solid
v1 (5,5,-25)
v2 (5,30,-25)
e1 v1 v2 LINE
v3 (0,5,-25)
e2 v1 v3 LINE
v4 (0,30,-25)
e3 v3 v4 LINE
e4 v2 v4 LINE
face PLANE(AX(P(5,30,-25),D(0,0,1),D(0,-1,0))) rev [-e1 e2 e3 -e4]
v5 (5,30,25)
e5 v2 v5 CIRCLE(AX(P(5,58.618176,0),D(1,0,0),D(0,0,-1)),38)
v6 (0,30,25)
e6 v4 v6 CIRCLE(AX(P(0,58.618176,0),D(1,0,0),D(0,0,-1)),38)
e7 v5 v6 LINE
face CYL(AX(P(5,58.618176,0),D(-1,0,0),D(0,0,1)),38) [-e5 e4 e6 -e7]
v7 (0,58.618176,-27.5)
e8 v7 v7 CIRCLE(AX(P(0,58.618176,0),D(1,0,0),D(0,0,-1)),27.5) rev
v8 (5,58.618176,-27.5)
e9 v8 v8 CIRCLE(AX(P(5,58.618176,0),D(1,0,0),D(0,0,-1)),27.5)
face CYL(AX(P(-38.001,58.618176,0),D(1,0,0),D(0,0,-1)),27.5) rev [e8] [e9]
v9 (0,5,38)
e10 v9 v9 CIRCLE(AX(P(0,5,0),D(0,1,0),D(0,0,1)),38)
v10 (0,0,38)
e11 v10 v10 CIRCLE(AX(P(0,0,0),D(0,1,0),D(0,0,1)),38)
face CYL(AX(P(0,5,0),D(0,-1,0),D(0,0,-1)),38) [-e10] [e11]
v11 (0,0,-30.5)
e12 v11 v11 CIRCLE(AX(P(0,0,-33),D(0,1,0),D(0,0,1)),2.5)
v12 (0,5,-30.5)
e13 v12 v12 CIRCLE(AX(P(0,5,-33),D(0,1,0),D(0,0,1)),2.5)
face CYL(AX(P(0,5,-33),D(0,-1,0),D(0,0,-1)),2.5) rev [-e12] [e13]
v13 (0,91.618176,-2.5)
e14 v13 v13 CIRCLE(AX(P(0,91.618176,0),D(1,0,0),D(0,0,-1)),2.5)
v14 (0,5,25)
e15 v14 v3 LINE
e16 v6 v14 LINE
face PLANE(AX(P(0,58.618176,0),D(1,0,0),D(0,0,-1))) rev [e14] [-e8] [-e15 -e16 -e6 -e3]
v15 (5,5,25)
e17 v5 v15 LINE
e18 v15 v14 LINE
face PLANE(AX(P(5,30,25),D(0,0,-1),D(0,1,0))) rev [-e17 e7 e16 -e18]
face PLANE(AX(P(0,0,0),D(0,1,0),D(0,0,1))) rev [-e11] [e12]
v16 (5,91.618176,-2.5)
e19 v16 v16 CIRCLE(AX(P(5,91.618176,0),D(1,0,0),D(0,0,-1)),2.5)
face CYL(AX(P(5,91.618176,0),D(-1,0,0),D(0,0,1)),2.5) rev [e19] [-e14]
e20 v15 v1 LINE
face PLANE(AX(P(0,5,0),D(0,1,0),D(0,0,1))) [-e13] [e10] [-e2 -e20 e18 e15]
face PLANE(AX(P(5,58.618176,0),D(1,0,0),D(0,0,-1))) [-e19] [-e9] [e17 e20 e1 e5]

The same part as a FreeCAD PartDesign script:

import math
import FreeCAD as App
import Part
import Sketcher

V = App.Vector
Q = App.Units.Quantity

doc = App.newDocument("Part")
params = doc.addObject("Spreadsheet::Sheet", "Params")
for row, (alias, value) in enumerate([
    ("sketch1_diameter", "76 mm"),
    ("sketch1_diameter2", "5 mm"),
    ("pad1_length", "5 mm"),
    ("sketch2_diameter", "5 mm"),
    ("sketch2_radius", "38 mm"),
    ("sketch2_width", "25 mm"),
    ("sketch2_height", "50 mm"),
    ("pad2_length", "5 mm"),
    ("sketch3_diameter", "55 mm"),
], start=1):
    params.set(f"A{row}", alias)
    params.set(f"B{row}", "=" + value)
    params.setAlias(f"B{row}", alias)

body = doc.addObject("PartDesign::Body", "Body")

# Sketch on XZ plane
sketch1 = body.newObject("Sketcher::SketchObject", "Sketch")
sketch1.AttachmentSupport = (doc.getObject("XZ_Plane"), [""])
sketch1.MapMode = "FlatFace"
sketch1.addGeometry([
    Part.Circle(V(0, 0, 0), V(0, 0, 1), 38),
    Part.Circle(V(0, -33, 0), V(0, 0, 1), 2.5),
], False)
sketch1.addConstraint([
    Sketcher.Constraint("Coincident", 0, 3, -1, 1),
    Sketcher.Constraint("PointOnObject", 1, 3, -2),
    Sketcher.Constraint("Diameter", 0, Q("76 mm")),
    Sketcher.Constraint("Diameter", 1, Q("5 mm")),
    Sketcher.Constraint("DistanceY", 1, 3, -1, 1, Q("33 mm")),
])
sketch1.setExpression("Constraints[2]", "Params.sketch1_diameter")
sketch1.setExpression("Constraints[3]", "Params.sketch1_diameter2")
pad1 = body.newObject("PartDesign::Pad", "Pad")
pad1.Profile = sketch1
pad1.setExpression("Length", "Params.pad1_length")
pad1.Reversed = True

# Sketch on YZ plane
sketch2 = body.newObject("Sketcher::SketchObject", "Sketch001")
sketch2.AttachmentSupport = (doc.getObject("YZ_Plane"), [""])
sketch2.MapMode = "FlatFace"
sketch2.addGeometry([
    Part.LineSegment(V(30, 25, 0), V(5, 25, 0)),  # 0
    Part.LineSegment(V(5, 25, 0), V(5, -25, 0)),  # 1
    Part.LineSegment(V(5, -25, 0), V(30, -25, 0)),  # 2
    Part.ArcOfCircle(Part.Circle(V(58.6, 0, 0), V(0, 0, 1), 38), math.radians(-139), math.radians(139)),  # 3
    Part.Circle(V(91.6, 0, 0), V(0, 0, 1), 2.5),  # 4
], False)
sketch2.addConstraint([
    Sketcher.Constraint("Coincident", 0, 2, 1, 1),
    Sketcher.Constraint("Coincident", 1, 2, 2, 1),
    Sketcher.Constraint("Coincident", 2, 2, 3, 1),
    Sketcher.Constraint("Coincident", 3, 2, 0, 1),
    Sketcher.Constraint("Horizontal", 0),
    Sketcher.Constraint("Vertical", 1),
    Sketcher.Constraint("Horizontal", 2),
    Sketcher.Constraint("Symmetric", 2, 2, 3, 2, -1),
    Sketcher.Constraint("PointOnObject", 4, 3, -1),
    Sketcher.Constraint("Diameter", 4, Q("5 mm")),
    Sketcher.Constraint("Radius", 3, Q("38 mm")),
    Sketcher.Constraint("DistanceX", 0, 2, 0, 1, Q("25 mm")),
    Sketcher.Constraint("DistanceY", 1, 2, 1, 1, Q("50 mm")),
    Sketcher.Constraint("DistanceX", -1, 1, 0, 2, Q("5 mm")),
    Sketcher.Constraint("DistanceX", 3, 3, 4, 3, Q("33 mm")),
])
sketch2.setExpression("Constraints[9]", "Params.sketch2_diameter")
sketch2.setExpression("Constraints[10]", "Params.sketch2_radius")
sketch2.setExpression("Constraints[11]", "Params.sketch2_width")
sketch2.setExpression("Constraints[12]", "Params.sketch2_height")
pad2 = body.newObject("PartDesign::Pad", "Pad001")
pad2.Profile = sketch2
pad2.setExpression("Length", "Params.pad2_length")

# Sketch on YZ plane
sketch3 = body.newObject("Sketcher::SketchObject", "Sketch002")
sketch3.AttachmentSupport = (doc.getObject("YZ_Plane"), [""])
sketch3.MapMode = "FlatFace"
sketch3.AttachmentOffset = App.Placement(V(0, 0, 5), App.Rotation())
sketch3.addGeometry(Part.Circle(V(59, 0, 0), V(0, 0, 1), 28), False)
sketch3.addConstraint([
    Sketcher.Constraint("PointOnObject", 0, 3, -1),
    Sketcher.Constraint("Diameter", 0, Q("55 mm")),
    Sketcher.Constraint("DistanceX", -1, 1, 0, 3, Q("58.618176 mm")),
])
sketch3.setExpression("Constraints[1]", "Params.sketch3_diameter")
pocket1 = body.newObject("PartDesign::Pocket", "Pocket")
pocket1.Profile = sketch3
pocket1.Type = "UpToFirst"

doc.recompute()
